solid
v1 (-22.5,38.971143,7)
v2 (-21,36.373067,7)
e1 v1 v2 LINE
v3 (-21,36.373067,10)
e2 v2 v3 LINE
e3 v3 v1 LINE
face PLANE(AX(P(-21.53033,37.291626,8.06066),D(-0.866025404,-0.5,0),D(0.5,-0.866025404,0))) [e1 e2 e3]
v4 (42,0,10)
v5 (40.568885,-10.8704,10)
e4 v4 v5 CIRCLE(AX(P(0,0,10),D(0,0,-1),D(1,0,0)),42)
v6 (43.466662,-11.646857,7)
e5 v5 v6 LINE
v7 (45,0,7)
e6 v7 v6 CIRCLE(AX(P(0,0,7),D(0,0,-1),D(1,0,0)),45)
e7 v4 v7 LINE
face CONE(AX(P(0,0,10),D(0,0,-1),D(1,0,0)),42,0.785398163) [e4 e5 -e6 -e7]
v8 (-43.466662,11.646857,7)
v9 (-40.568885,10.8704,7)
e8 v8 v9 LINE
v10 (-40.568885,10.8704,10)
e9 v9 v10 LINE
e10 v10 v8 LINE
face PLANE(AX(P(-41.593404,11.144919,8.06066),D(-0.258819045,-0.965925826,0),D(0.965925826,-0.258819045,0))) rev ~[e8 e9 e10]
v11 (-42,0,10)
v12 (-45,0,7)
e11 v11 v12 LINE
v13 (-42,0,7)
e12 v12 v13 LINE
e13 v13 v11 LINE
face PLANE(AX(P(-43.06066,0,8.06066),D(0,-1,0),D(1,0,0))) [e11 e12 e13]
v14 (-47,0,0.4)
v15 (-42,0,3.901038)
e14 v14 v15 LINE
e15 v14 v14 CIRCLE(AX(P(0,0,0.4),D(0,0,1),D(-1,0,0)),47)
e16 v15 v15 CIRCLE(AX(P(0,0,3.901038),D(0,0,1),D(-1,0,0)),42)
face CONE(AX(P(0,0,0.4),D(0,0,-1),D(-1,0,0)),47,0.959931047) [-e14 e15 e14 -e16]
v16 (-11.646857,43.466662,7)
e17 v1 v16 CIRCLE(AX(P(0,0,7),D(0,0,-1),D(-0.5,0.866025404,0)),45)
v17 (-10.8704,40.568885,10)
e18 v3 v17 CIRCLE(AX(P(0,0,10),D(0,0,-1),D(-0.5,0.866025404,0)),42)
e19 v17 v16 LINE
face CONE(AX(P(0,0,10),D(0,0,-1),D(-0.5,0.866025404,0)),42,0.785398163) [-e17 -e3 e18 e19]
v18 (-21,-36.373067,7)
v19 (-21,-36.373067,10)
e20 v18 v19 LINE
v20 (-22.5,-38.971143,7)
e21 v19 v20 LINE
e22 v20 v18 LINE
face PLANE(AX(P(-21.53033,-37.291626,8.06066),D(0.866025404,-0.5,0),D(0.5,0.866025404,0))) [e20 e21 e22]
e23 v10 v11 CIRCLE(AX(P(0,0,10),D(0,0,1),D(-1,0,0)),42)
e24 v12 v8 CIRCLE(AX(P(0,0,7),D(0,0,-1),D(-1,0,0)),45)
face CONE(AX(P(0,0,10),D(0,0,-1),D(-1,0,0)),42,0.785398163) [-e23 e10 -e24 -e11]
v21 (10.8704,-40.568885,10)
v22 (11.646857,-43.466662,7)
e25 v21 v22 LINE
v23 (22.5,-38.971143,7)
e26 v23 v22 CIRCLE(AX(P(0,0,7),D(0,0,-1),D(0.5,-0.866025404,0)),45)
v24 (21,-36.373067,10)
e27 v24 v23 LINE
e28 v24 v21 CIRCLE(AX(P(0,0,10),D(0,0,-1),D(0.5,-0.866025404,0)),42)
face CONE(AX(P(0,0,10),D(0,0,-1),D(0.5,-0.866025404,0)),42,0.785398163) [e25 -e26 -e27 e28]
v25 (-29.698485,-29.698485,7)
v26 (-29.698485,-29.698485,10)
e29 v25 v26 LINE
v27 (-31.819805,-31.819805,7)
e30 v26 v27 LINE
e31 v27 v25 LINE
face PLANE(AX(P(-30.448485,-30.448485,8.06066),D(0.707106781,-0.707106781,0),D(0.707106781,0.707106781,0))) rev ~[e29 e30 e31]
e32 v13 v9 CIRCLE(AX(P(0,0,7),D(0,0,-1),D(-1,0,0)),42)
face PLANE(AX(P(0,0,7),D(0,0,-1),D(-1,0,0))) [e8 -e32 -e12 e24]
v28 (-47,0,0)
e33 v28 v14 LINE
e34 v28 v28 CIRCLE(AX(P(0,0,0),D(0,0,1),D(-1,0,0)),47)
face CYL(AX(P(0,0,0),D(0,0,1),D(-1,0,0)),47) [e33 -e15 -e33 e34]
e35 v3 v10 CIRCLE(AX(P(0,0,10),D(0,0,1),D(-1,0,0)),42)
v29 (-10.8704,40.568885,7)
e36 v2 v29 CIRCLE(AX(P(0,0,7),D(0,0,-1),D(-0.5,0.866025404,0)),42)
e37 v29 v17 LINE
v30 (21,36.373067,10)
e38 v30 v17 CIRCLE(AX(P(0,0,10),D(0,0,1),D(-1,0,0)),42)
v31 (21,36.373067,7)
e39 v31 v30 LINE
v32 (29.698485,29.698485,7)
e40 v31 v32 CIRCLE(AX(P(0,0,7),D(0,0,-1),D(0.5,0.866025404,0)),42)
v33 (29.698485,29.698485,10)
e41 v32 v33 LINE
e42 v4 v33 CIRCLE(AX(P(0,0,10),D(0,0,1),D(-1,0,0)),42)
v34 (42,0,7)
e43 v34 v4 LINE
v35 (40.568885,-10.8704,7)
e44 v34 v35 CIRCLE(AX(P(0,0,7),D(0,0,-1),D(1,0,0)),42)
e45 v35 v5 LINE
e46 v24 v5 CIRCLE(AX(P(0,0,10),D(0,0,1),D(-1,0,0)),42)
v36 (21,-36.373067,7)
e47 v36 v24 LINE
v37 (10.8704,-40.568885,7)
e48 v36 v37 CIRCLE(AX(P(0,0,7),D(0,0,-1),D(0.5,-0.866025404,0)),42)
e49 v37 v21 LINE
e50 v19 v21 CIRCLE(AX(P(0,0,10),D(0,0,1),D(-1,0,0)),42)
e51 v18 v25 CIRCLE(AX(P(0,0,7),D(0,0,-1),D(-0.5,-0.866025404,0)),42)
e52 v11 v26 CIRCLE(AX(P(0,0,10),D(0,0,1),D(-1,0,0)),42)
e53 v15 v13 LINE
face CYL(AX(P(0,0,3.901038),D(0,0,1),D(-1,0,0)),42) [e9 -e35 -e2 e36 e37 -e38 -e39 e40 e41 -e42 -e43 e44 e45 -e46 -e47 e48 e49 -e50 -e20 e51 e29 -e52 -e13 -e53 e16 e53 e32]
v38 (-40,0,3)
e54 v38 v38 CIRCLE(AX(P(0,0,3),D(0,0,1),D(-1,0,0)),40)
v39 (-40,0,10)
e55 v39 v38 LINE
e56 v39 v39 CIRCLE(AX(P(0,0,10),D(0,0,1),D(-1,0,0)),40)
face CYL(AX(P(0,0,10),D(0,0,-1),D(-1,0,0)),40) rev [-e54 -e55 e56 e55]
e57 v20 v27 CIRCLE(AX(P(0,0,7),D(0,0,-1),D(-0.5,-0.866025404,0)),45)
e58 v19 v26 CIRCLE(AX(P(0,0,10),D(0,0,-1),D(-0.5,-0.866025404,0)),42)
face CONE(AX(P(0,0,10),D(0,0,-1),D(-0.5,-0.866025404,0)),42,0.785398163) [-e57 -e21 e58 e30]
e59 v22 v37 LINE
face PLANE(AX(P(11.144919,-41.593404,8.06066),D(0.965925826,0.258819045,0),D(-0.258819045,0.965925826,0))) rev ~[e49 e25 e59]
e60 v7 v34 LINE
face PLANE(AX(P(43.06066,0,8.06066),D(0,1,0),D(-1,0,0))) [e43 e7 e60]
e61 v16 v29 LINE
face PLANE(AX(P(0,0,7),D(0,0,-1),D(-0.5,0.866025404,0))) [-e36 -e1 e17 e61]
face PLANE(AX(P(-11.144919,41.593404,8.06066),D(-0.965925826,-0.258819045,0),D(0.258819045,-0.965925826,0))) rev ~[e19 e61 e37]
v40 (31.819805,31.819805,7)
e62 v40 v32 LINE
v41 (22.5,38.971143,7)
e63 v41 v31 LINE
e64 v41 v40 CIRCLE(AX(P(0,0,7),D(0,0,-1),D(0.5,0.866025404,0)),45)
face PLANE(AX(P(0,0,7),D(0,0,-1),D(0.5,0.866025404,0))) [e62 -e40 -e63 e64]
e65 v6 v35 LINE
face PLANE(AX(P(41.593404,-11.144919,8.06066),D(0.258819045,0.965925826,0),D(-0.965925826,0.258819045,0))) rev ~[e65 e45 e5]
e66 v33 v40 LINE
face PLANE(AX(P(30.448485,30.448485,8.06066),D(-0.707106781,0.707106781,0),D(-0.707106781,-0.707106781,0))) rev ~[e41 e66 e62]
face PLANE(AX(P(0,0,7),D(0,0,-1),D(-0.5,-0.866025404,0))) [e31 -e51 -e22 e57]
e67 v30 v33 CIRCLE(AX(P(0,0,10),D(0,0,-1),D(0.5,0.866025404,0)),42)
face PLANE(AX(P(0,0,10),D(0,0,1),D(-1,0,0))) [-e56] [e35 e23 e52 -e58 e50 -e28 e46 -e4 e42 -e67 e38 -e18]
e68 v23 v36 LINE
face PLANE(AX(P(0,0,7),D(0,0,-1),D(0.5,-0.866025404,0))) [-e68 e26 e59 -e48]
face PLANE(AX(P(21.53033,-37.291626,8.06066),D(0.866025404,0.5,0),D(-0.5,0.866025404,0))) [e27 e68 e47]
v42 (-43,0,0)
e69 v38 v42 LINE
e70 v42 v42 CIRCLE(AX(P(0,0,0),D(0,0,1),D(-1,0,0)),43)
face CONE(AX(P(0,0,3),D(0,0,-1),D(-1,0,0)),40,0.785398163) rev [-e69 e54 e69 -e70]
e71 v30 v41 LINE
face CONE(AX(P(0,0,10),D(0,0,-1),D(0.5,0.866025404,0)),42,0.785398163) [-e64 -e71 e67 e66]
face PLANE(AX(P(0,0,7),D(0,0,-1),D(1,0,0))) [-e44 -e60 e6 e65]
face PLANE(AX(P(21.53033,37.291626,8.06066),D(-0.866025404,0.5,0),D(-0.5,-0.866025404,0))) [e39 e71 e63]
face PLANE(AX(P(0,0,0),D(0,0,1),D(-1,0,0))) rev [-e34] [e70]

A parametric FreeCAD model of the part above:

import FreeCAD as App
import Part
import Sketcher

V = App.Vector
Q = App.Units.Quantity


def edges_at(feature, points):
    """Names of the edges that pass closest to the given points."""
    edges = feature.Shape.Edges
    near = lambda p: min(range(len(edges)), key=lambda i: edges[i].distToShape(Part.Vertex(*p))[0])
    return sorted({f"Edge{near(p) + 1}" for p in points})


def add_polygon(sketch, points):
    """Adds a closed chain of lines whose ends are joined by coincident constraints."""
    first, n = sketch.GeometryCount, len(points)
    for a, b in zip(points, points[1:] + points[:1]):
        sketch.addGeometry(Part.LineSegment(App.Vector(*a, 0), App.Vector(*b, 0)), False)
    for i in range(n):
        sketch.addConstraint(Sketcher.Constraint("Coincident", first + i, 2, first + (i + 1) % n, 1))

doc = App.newDocument("Part")
body = doc.addObject("PartDesign::Body", "Body")

sketch1 = body.newObject("Sketcher::SketchObject", "Sketch")
sketch1.AttachmentSupport = (doc.getObject("XZ_Plane"), [""])
sketch1.MapMode = "FlatFace"
add_polygon(sketch1, [(-40, 10), (-42, 10), (-42, 3.901038), (-47, 0.4), (-47, 0), (-40, 0)])
sketch1.addConstraint(Sketcher.Constraint("Horizontal", 0))
sketch1.addConstraint(Sketcher.Constraint("Vertical", 1))
sketch1.addConstraint(Sketcher.Constraint("Vertical", 3))
sketch1.addConstraint(Sketcher.Constraint("Horizontal", 4))
sketch1.addConstraint(Sketcher.Constraint("Vertical", 5))
sketch1.addConstraint(Sketcher.Constraint("PointOnObject", 3, 2, -1))
sketch1.addConstraint(Sketcher.Constraint("DistanceX", 0, 2, 0, 1, Q("2 mm")))
sketch1.addConstraint(Sketcher.Constraint("DistanceX", 4, 1, 4, 2, Q("7 mm")))
sketch1.addConstraint(Sketcher.Constraint("DistanceY", 5, 1, 5, 2, Q("10 mm")))
sketch1.addConstraint(Sketcher.Constraint("Angle", 2, Q("-144.999998 deg")))
sketch1.addConstraint(Sketcher.Constraint("DistanceY", 3, 2, 3, 1, Q("0.4 mm")))
sketch1.addConstraint(Sketcher.Constraint("DistanceX", 0, 2, -1, 1, Q("42 mm")))
revolution = body.newObject("PartDesign::Revolution", "Revolution")
revolution.Profile = sketch1
revolution.ReferenceAxis = (sketch1, ["V_Axis"])
revolution.Angle = 360

sketch2 = body.newObject("Sketcher::SketchObject", "Sketch001")
sketch2.AttachmentSupport = (doc.getObject("XZ_Plane"), [""])
sketch2.MapMode = "FlatFace"
add_polygon(sketch2, [(-45, 7), (-42, 7), (-42, 10)])
sketch2.addConstraint(Sketcher.Constraint("Horizontal", 0))
sketch2.addConstraint(Sketcher.Constraint("Vertical", 1))
sketch2.addConstraint(Sketcher.Constraint("Equal", 0, 1))
sketch2.addConstraint(Sketcher.Constraint("DistanceX", 0, 1, 0, 2, Q("3 mm")))
sketch2.addConstraint(Sketcher.Constraint("DistanceX", 0, 2, -1, 1, Q("42 mm")))
sketch2.addConstraint(Sketcher.Constraint("DistanceY", -1, 1, 0, 2, Q("7 mm")))
revolution2 = body.newObject("PartDesign::Revolution", "Revolution001")
revolution2.Profile = sketch2
revolution2.ReferenceAxis = (sketch2, ["V_Axis"])
revolution2.Angle = 15
revolution2.Reversed = True
doc.recompute()

polarpattern = body.newObject("PartDesign::PolarPattern", "PolarPattern")
polarpattern.Originals = [revolution2]
polarpattern.Axis = (doc.getObject("Z_Axis"), [""])
polarpattern.Angle = 360
polarpattern.Occurrences = 6
body.Tip = polarpattern
doc.recompute()

chamfer = body.newObject("PartDesign::Chamfer", "Chamfer")
chamfer.Base = (polarpattern, edges_at(polarpattern, [(40, 0, 0)]))
chamfer.Size = 3

doc.recompute()
